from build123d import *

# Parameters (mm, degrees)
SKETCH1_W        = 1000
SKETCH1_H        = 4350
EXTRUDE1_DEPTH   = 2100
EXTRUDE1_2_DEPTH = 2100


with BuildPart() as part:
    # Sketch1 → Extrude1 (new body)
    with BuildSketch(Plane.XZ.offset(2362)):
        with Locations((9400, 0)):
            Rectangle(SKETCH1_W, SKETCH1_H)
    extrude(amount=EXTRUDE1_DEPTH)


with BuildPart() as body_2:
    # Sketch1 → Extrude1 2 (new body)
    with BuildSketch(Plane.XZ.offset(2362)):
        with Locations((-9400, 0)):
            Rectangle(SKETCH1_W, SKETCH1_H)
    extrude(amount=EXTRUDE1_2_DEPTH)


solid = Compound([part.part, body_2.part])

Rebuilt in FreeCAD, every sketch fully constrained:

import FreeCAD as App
import Part
import Sketcher
Q = App.Units.Quantity

doc = App.newDocument("Part")
params = doc.addObject("Spreadsheet::Sheet", "Params")
for row, (alias, value) in enumerate([
    ("sketch1_width", "1000 mm"),
    ("sketch1_height", "4350 mm"),
    ("pad1_length", "2100 mm"),
    ("sketch2_width", "1000 mm"),
    ("sketch2_height", "4350 mm"),
    ("pad2_length", "2100 mm"),
], start=1):
    params.set(f"A{row}", alias)
    params.set(f"B{row}", "=" + value)
    params.setAlias(f"B{row}", alias)

body = doc.addObject("PartDesign::Body", "Body")

# Sketch on XZ plane
sketch1 = body.newObject("Sketcher::SketchObject", "Sketch")
sketch1.AttachmentSupport = (doc.getObject("XZ_Plane"), [""])
sketch1.MapMode = "FlatFace"
sketch1.AttachmentOffset = App.Placement(App.Vector(0, 0, 2362), App.Rotation())
sketch1.addGeometry(Part.LineSegment(App.Vector(8900, 2175, 0), App.Vector(8900, -2175, 0)), False)
sketch1.addGeometry(Part.LineSegment(App.Vector(8900, -2175, 0), App.Vector(9900, -2175, 0)), False)
sketch1.addGeometry(Part.LineSegment(App.Vector(9900, -2175, 0), App.Vector(9900, 2175, 0)), False)
sketch1.addGeometry(Part.LineSegment(App.Vector(9900, 2175, 0), App.Vector(8900, 2175, 0)), False)
sketch1.addConstraint(Sketcher.Constraint("Coincident", 0, 2, 1, 1))
sketch1.addConstraint(Sketcher.Constraint("Coincident", 1, 2, 2, 1))
sketch1.addConstraint(Sketcher.Constraint("Coincident", 2, 2, 3, 1))
sketch1.addConstraint(Sketcher.Constraint("Coincident", 3, 2, 0, 1))
sketch1.addConstraint(Sketcher.Constraint("Vertical", 0))
sketch1.addConstraint(Sketcher.Constraint("Horizontal", 1))
sketch1.addConstraint(Sketcher.Constraint("Vertical", 2))
sketch1.addConstraint(Sketcher.Constraint("Horizontal", 3))
sketch1.addConstraint(Sketcher.Constraint("DistanceX", 1, 1, 1, 2, Q("1000 mm")))
sketch1.addConstraint(Sketcher.Constraint("DistanceY", 0, 2, 0, 1, Q("4350 mm")))
sketch1.addConstraint(Sketcher.Constraint("DistanceX", -1, 1, 0, 2, Q("8900 mm")))
sketch1.addConstraint(Sketcher.Constraint("DistanceY", 0, 2, -1, 1, Q("2175 mm")))
sketch1.setExpression("Constraints[8]", "Params.sketch1_width")
sketch1.setExpression("Constraints[9]", "Params.sketch1_height")
pad1 = body.newObject("PartDesign::Pad", "Pad")
pad1.Profile = sketch1
pad1.setExpression("Length", "Params.pad1_length")
body2 = doc.addObject("PartDesign::Body", "Body001")

# Sketch on XZ plane
sketch2 = body2.newObject("Sketcher::SketchObject", "Sketch001")
sketch2.AttachmentSupport = (doc.getObject("XZ_Plane001"), [""])
sketch2.MapMode = "FlatFace"
sketch2.AttachmentOffset = App.Placement(App.Vector(0, 0, 2362), App.Rotation())
sketch2.addGeometry(Part.LineSegment(App.Vector(-9900, 2175, 0), App.Vector(-9900, -2175, 0)), False)
sketch2.addGeometry(Part.LineSegment(App.Vector(-9900, -2175, 0), App.Vector(-8900, -2175, 0)), False)
sketch2.addGeometry(Part.LineSegment(App.Vector(-8900, -2175, 0), App.Vector(-8900, 2175, 0)), False)
sketch2.addGeometry(Part.LineSegment(App.Vector(-8900, 2175, 0), App.Vector(-9900, 2175, 0)), False)
sketch2.addConstraint(Sketcher.Constraint("Coincident", 0, 2, 1, 1))
sketch2.addConstraint(Sketcher.Constraint("Coincident", 1, 2, 2, 1))
sketch2.addConstraint(Sketcher.Constraint("Coincident", 2, 2, 3, 1))
sketch2.addConstraint(Sketcher.Constraint("Coincident", 3, 2, 0, 1))
sketch2.addConstraint(Sketcher.Constraint("Vertical", 0))
sketch2.addConstraint(Sketcher.Constraint("Horizontal", 1))
sketch2.addConstraint(Sketcher.Constraint("Vertical", 2))
sketch2.addConstraint(Sketcher.Constraint("Horizontal", 3))
sketch2.addConstraint(Sketcher.Constraint("DistanceX", 1, 1, 1, 2, Q("1000 mm")))
sketch2.addConstraint(Sketcher.Constraint("DistanceY", 0, 2, 0, 1, Q("4350 mm")))
sketch2.addConstraint(Sketcher.Constraint("DistanceX", 0, 2, -1, 1, Q("9900 mm")))
sketch2.addConstraint(Sketcher.Constraint("DistanceY", 0, 2, -1, 1, Q("2175 mm")))
sketch2.setExpression("Constraints[8]", "Params.sketch2_width")
sketch2.setExpression("Constraints[9]", "Params.sketch2_height")
pad2 = body2.newObject("PartDesign::Pad", "Pad001")
pad2.Profile = sketch2
pad2.setExpression("Length", "Params.pad2_length")

doc.recompute()
